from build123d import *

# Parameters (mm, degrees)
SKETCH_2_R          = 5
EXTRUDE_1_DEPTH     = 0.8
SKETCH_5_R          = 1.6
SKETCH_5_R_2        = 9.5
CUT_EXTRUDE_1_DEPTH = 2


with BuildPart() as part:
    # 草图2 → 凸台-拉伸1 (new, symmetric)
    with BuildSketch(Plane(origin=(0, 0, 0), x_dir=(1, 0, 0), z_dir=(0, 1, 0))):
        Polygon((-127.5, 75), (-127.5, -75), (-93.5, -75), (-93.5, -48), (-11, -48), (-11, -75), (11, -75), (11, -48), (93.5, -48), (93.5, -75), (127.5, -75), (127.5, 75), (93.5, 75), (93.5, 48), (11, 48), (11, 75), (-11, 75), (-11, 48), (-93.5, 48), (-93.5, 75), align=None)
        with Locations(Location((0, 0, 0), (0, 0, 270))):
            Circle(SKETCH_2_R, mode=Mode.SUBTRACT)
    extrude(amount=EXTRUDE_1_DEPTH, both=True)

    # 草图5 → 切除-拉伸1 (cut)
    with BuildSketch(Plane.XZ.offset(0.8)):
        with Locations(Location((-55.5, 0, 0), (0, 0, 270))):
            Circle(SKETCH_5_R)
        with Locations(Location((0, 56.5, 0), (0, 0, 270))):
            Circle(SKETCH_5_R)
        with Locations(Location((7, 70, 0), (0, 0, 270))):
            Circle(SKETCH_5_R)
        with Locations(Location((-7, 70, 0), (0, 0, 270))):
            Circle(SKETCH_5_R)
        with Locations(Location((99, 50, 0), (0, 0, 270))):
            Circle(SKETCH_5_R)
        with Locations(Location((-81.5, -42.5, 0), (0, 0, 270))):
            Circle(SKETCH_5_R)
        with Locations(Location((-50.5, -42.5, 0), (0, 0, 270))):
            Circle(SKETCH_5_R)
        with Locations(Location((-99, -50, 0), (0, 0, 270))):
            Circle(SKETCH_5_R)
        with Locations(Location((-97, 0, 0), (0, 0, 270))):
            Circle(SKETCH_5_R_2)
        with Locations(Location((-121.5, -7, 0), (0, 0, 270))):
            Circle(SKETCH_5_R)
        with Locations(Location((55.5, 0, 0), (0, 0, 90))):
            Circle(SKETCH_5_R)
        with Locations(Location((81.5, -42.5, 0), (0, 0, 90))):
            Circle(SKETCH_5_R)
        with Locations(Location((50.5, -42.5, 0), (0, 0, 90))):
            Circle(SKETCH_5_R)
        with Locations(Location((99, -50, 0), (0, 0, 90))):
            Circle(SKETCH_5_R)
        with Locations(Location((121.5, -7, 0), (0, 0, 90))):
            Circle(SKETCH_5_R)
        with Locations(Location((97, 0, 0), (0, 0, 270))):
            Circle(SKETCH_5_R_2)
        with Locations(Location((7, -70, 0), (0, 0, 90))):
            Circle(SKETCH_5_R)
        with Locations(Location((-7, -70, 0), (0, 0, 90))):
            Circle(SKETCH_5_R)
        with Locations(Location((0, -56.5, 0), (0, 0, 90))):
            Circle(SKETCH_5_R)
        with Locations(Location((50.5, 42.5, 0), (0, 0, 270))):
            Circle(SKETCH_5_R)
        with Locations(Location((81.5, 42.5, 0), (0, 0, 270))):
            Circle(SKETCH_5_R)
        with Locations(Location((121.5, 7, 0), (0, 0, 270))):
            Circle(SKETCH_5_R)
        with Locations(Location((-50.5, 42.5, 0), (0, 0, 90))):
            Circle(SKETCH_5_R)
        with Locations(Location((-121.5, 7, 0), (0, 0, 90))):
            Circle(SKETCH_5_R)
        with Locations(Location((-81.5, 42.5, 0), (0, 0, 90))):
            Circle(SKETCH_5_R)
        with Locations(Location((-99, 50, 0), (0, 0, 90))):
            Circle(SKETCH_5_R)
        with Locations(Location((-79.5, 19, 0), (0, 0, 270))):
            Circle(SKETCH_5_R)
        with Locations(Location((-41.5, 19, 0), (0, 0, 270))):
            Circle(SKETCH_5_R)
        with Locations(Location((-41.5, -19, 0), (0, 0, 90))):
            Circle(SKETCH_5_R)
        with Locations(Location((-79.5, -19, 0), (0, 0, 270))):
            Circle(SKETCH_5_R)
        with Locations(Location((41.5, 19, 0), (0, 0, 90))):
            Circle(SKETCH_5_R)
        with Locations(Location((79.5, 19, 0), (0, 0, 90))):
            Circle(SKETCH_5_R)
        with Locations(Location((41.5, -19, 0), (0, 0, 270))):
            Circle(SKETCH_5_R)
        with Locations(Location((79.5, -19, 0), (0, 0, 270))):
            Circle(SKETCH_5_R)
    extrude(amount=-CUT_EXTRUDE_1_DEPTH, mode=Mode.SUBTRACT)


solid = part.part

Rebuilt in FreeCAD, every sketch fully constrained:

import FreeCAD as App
import Part
import Sketcher
Q = App.Units.Quantity


def add_polygon(sketch, points):
    """Adds a closed chain of lines whose ends are joined by coincident constraints."""
    first, n = sketch.GeometryCount, len(points)
    for a, b in zip(points, points[1:] + points[:1]):
        sketch.addGeometry(Part.LineSegment(App.Vector(*a, 0), App.Vector(*b, 0)), False)
    for i in range(n):
        sketch.addConstraint(Sketcher.Constraint("Coincident", first + i, 2, first + (i + 1) % n, 1))

doc = App.newDocument("Part")
body = doc.addObject("PartDesign::Body", "Body")

# Sketch on XZ plane
sketch1 = body.newObject("Sketcher::SketchObject", "Sketch")
sketch1.AttachmentSupport = (doc.getObject("XZ_Plane"), [""])
sketch1.MapMode = "FlatFace"
add_polygon(sketch1, [(-128, -75), (-128, 75), (-94, 75), (-94, 48), (-11, 48), (-11, 75), (11, 75), (11, 48), (94, 48), (94, 75), (128, 75), (128, -75), (94, -75), (94, -48), (11, -48), (11, -75), (-11, -75), (-11, -48), (-94, -48), (-94, -75)])  # lines 0-19
sketch1.addGeometry(Part.Circle(App.Vector(0, 0, 0), App.Vector(0, 0, 1), 5), False)  # 20
sketch1.addConstraint(Sketcher.Constraint("Vertical", 0))
sketch1.addConstraint(Sketcher.Constraint("Horizontal", 1))
sketch1.addConstraint(Sketcher.Constraint("Vertical", 2))
sketch1.addConstraint(Sketcher.Constraint("Horizontal", 3))
sketch1.addConstraint(Sketcher.Constraint("Vertical", 4))
sketch1.addConstraint(Sketcher.Constraint("Horizontal", 5))
sketch1.addConstraint(Sketcher.Constraint("Vertical", 6))
sketch1.addConstraint(Sketcher.Constraint("Horizontal", 7))
sketch1.addConstraint(Sketcher.Constraint("Vertical", 8))
sketch1.addConstraint(Sketcher.Constraint("Horizontal", 9))
sketch1.addConstraint(Sketcher.Constraint("Vertical", 10))
sketch1.addConstraint(Sketcher.Constraint("Horizontal", 11))
sketch1.addConstraint(Sketcher.Constraint("Vertical", 12))
sketch1.addConstraint(Sketcher.Constraint("Horizontal", 13))
sketch1.addConstraint(Sketcher.Constraint("Vertical", 14))
sketch1.addConstraint(Sketcher.Constraint("Horizontal", 15))
sketch1.addConstraint(Sketcher.Constraint("Vertical", 16))
sketch1.addConstraint(Sketcher.Constraint("Horizontal", 17))
sketch1.addConstraint(Sketcher.Constraint("Vertical", 18))
sketch1.addConstraint(Sketcher.Constraint("Horizontal", 19))
sketch1.addConstraint(Sketcher.Constraint("Coincident", 20, 3, -1, 1))
sketch1.addConstraint(Sketcher.Constraint("Symmetric", 0, 2, 10, 2, -1, 1))
sketch1.addConstraint(Sketcher.Constraint("Symmetric", 2, 2, 12, 2, -1, 1))
sketch1.addConstraint(Sketcher.Constraint("Symmetric", 4, 2, 14, 2, -1, 1))
sketch1.addConstraint(Sketcher.Constraint("Symmetric", 6, 2, 16, 2, -1, 1))
sketch1.addConstraint(Sketcher.Constraint("Symmetric", 8, 2, 18, 2, -1, 1))
sketch1.addConstraint(Sketcher.Constraint("Symmetric", 3, 2, 6, 2, -2))
sketch1.addConstraint(Sketcher.Constraint("Symmetric", 1, 2, 8, 2, -2))
sketch1.addConstraint(Sketcher.Constraint("Horizontal", 1, 2, 4, 2))
sketch1.addConstraint(Sketcher.Constraint("Diameter", 20, Q("10 mm")))
sketch1.addConstraint(Sketcher.Constraint("DistanceX", 1, 1, 1, 2, Q("34 mm")))
sketch1.addConstraint(Sketcher.Constraint("DistanceX", 5, 1, 5, 2, Q("22 mm")))
sketch1.addConstraint(Sketcher.Constraint("DistanceY", 0, 1, 0, 2, Q("150 mm")))
sketch1.addConstraint(Sketcher.Constraint("DistanceY", 2, 2, 2, 1, Q("27 mm")))
sketch1.addConstraint(Sketcher.Constraint("DistanceX", 3, 1, 3, 2, Q("82.5 mm")))
pad1 = body.newObject("PartDesign::Pad", "Pad")
pad1.Profile = sketch1
pad1.Length = 1.6
pad1.Midplane = True

# Sketch on XZ plane
sketch2 = body.newObject("Sketcher::SketchObject", "Sketch001")
sketch2.AttachmentSupport = (doc.getObject("XZ_Plane"), [""])
sketch2.MapMode = "FlatFace"
sketch2.AttachmentOffset = App.Placement(App.Vector(0, 0, 0.8), App.Rotation())
sketch2.addGeometry(Part.Circle(App.Vector(-55.5, 0, 0), App.Vector(0, 0, 1), 1.6), False)
sketch2.addGeometry(Part.Circle(App.Vector(0, 56.5, 0), App.Vector(0, 0, 1), 1.6), False)
sketch2.addGeometry(Part.Circle(App.Vector(7, 70, 0), App.Vector(0, 0, 1), 1.6), False)
sketch2.addGeometry(Part.Circle(App.Vector(-7, 70, 0), App.Vector(0, 0, 1), 1.6), False)
sketch2.addGeometry(Part.Circle(App.Vector(99, 50, 0), App.Vector(0, 0, 1), 1.6), False)
sketch2.addGeometry(Part.Circle(App.Vector(-81.5, -42.5, 0), App.Vector(0, 0, 1), 1.6), False)
sketch2.addGeometry(Part.Circle(App.Vector(-50.5, -42.5, 0), App.Vector(0, 0, 1), 1.6), False)
sketch2.addGeometry(Part.Circle(App.Vector(-99, -50, 0), App.Vector(0, 0, 1), 1.6), False)
sketch2.addGeometry(Part.Circle(App.Vector(-97, 0, 0), App.Vector(0, 0, 1), 9.5), False)
sketch2.addGeometry(Part.Circle(App.Vector(-121.5, -7, 0), App.Vector(0, 0, 1), 1.6), False)
sketch2.addGeometry(Part.Circle(App.Vector(55.5, 0, 0), App.Vector(0, 0, 1), 1.6), False)
sketch2.addGeometry(Part.Circle(App.Vector(81.5, -42.5, 0), App.Vector(0, 0, 1), 1.6), False)
sketch2.addGeometry(Part.Circle(App.Vector(50.5, -42.5, 0), App.Vector(0, 0, 1), 1.6), False)
sketch2.addGeometry(Part.Circle(App.Vector(99, -50, 0), App.Vector(0, 0, 1), 1.6), False)
sketch2.addGeometry(Part.Circle(App.Vector(121.5, -7, 0), App.Vector(0, 0, 1), 1.6), False)
sketch2.addGeometry(Part.Circle(App.Vector(97, 0, 0), App.Vector(0, 0, 1), 9.5), False)
sketch2.addGeometry(Part.Circle(App.Vector(7, -70, 0), App.Vector(0, 0, 1), 1.6), False)
sketch2.addGeometry(Part.Circle(App.Vector(-7, -70, 0), App.Vector(0, 0, 1), 1.6), False)
sketch2.addGeometry(Part.Circle(App.Vector(0, -56.5, 0), App.Vector(0, 0, 1), 1.6), False)
sketch2.addGeometry(Part.Circle(App.Vector(50.5, 42.5, 0), App.Vector(0, 0, 1), 1.6), False)
sketch2.addGeometry(Part.Circle(App.Vector(81.5, 42.5, 0), App.Vector(0, 0, 1), 1.6), False)
sketch2.addGeometry(Part.Circle(App.Vector(121.5, 7, 0), App.Vector(0, 0, 1), 1.6), False)
sketch2.addGeometry(Part.Circle(App.Vector(-50.5, 42.5, 0), App.Vector(0, 0, 1), 1.6), False)
sketch2.addGeometry(Part.Circle(App.Vector(-121.5, 7, 0), App.Vector(0, 0, 1), 1.6), False)
sketch2.addGeometry(Part.Circle(App.Vector(-81.5, 42.5, 0), App.Vector(0, 0, 1), 1.6), False)
sketch2.addGeometry(Part.Circle(App.Vector(-99, 50, 0), App.Vector(0, 0, 1), 1.6), False)
sketch2.addGeometry(Part.Circle(App.Vector(-79.5, 19, 0), App.Vector(0, 0, 1), 1.6), False)
sketch2.addGeometry(Part.Circle(App.Vector(-41.5, 19, 0), App.Vector(0, 0, 1), 1.6), False)
sketch2.addGeometry(Part.Circle(App.Vector(-41.5, -19, 0), App.Vector(0, 0, 1), 1.6), False)
sketch2.addGeometry(Part.Circle(App.Vector(-79.5, -19, 0), App.Vector(0, 0, 1), 1.6), False)
sketch2.addGeometry(Part.Circle(App.Vector(41.5, 19, 0), App.Vector(0, 0, 1), 1.6), False)
sketch2.addGeometry(Part.Circle(App.Vector(79.5, 19, 0), App.Vector(0, 0, 1), 1.6), False)
sketch2.addGeometry(Part.Circle(App.Vector(41.5, -19, 0), App.Vector(0, 0, 1), 1.6), False)
sketch2.addGeometry(Part.Circle(App.Vector(79.5, -19, 0), App.Vector(0, 0, 1), 1.6), False)
sketch2.addConstraint(Sketcher.Constraint("Equal", 0, 1))
sketch2.addConstraint(Sketcher.Constraint("Equal", 1, 2))
sketch2.addConstraint(Sketcher.Constraint("Equal", 2, 3))
sketch2.addConstraint(Sketcher.Constraint("Equal", 3, 4))
sketch2.addConstraint(Sketcher.Constraint("Equal", 4, 5))
sketch2.addConstraint(Sketcher.Constraint("Equal", 5, 6))
sketch2.addConstraint(Sketcher.Constraint("Equal", 6, 7))
sketch2.addConstraint(Sketcher.Constraint("Equal", 7, 9))
sketch2.addConstraint(Sketcher.Constraint("Equal", 9, 10))
sketch2.addConstraint(Sketcher.Constraint("Equal", 10, 11))
sketch2.addConstraint(Sketcher.Constraint("Equal", 11, 12))
sketch2.addConstraint(Sketcher.Constraint("Equal", 12, 13))
sketch2.addConstraint(Sketcher.Constraint("Equal", 13, 14))
sketch2.addConstraint(Sketcher.Constraint("Equal", 8, 15))
sketch2.addConstraint(Sketcher.Constraint("Equal", 14, 16))
sketch2.addConstraint(Sketcher.Constraint("Equal", 16, 17))
sketch2.addConstraint(Sketcher.Constraint("Equal", 17, 18))
sketch2.addConstraint(Sketcher.Constraint("Equal", 18, 19))
sketch2.addConstraint(Sketcher.Constraint("Equal", 19, 20))
sketch2.addConstraint(Sketcher.Constraint("Equal", 20, 21))
sketch2.addConstraint(Sketcher.Constraint("Equal", 21, 22))
sketch2.addConstraint(Sketcher.Constraint("Equal", 22, 23))
sketch2.addConstraint(Sketcher.Constraint("Equal", 23, 24))
sketch2.addConstraint(Sketcher.Constraint("Equal", 24, 25))
sketch2.addConstraint(Sketcher.Constraint("Equal", 25, 26))
sketch2.addConstraint(Sketcher.Constraint("Equal", 26, 27))
sketch2.addConstraint(Sketcher.Constraint("Equal", 27, 28))
sketch2.addConstraint(Sketcher.Constraint("Equal", 28, 29))
sketch2.addConstraint(Sketcher.Constraint("Equal", 29, 30))
sketch2.addConstraint(Sketcher.Constraint("Equal", 30, 31))
sketch2.addConstraint(Sketcher.Constraint("Equal", 31, 32))
sketch2.addConstraint(Sketcher.Constraint("Equal", 32, 33))
sketch2.addConstraint(Sketcher.Constraint("Symmetric", 4, 3, 7, 3, -1, 1))
sketch2.addConstraint(Sketcher.Constraint("Symmetric", 0, 3, 10, 3, -1, 1))
sketch2.addConstraint(Sketcher.Constraint("Symmetric", 8, 3, 15, 3, -1, 1))
sketch2.addConstraint(Sketcher.Constraint("Symmetric", 3, 3, 16, 3, -1, 1))
sketch2.addConstraint(Sketcher.Constraint("Symmetric", 2, 3, 17, 3, -1, 1))
sketch2.addConstraint(Sketcher.Constraint("Symmetric", 1, 3, 18, 3, -1, 1))
sketch2.addConstraint(Sketcher.Constraint("Symmetric", 6, 3, 19, 3, -1, 1))
sketch2.addConstraint(Sketcher.Constraint("Symmetric", 5, 3, 20, 3, -1, 1))
sketch2.addConstraint(Sketcher.Constraint("Symmetric", 9, 3, 21, 3, -1, 1))
sketch2.addConstraint(Sketcher.Constraint("Symmetric", 12, 3, 22, 3, -1, 1))
sketch2.addConstraint(Sketcher.Constraint("Symmetric", 14, 3, 23, 3, -1, 1))
sketch2.addConstraint(Sketcher.Constraint("Symmetric", 11, 3, 24, 3, -1, 1))
sketch2.addConstraint(Sketcher.Constraint("Symmetric", 13, 3, 25, 3, -1, 1))
sketch2.addConstraint(Sketcher.Constraint("Symmetric", 28, 3, 30, 3, -1, 1))
sketch2.addConstraint(Sketcher.Constraint("Symmetric", 29, 3, 31, 3, -1, 1))
sketch2.addConstraint(Sketcher.Constraint("Symmetric", 27, 3, 32, 3, -1, 1))
sketch2.addConstraint(Sketcher.Constraint("Symmetric", 26, 3, 33, 3, -1, 1))
sketch2.addConstraint(Sketcher.Constraint("Symmetric", 2, 3, 3, 3, -2))
sketch2.addConstraint(Sketcher.Constraint("Symmetric", 5, 3, 11, 3, -2))
sketch2.addConstraint(Sketcher.Constraint("Symmetric", 6, 3, 12, 3, -2))
sketch2.addConstraint(Sketcher.Constraint("Symmetric", 7, 3, 13, 3, -2))
sketch2.addConstraint(Sketcher.Constraint("Symmetric", 9, 3, 14, 3, -2))
sketch2.addConstraint(Sketcher.Constraint("Symmetric", 27, 3, 30, 3, -2))
sketch2.addConstraint(Sketcher.Constraint("Symmetric", 26, 3, 31, 3, -2))
sketch2.addConstraint(Sketcher.Constraint("PointOnObject", 0, 3, -1))
sketch2.addConstraint(Sketcher.Constraint("PointOnObject", 1, 3, -2))
sketch2.addConstraint(Sketcher.Constraint("PointOnObject", 8, 3, -1))
sketch2.addConstraint(Sketcher.Constraint("Horizontal", 5, 3, 6, 3))
sketch2.addConstraint(Sketcher.Constraint("Horizontal", 26, 3, 27, 3))
sketch2.addConstraint(Sketcher.Constraint("Diameter", 8, Q("19 mm")))
sketch2.addConstraint(Sketcher.Constraint("Diameter", 0, Q("3.2 mm")))
sketch2.addConstraint(Sketcher.Constraint("DistanceX", -1, 1, 2, 3, Q("7 mm")))
sketch2.addConstraint(Sketcher.Constraint("DistanceY", -1, 1, 2, 3, Q("70 mm")))
sketch2.addConstraint(Sketcher.Constraint("DistanceX", -1, 1, 4, 3, Q("99 mm")))
sketch2.addConstraint(Sketcher.Constraint("DistanceY", -1, 1, 4, 3, Q("50 mm")))
sketch2.addConstraint(Sketcher.Constraint("DistanceX", 8, 3, -1, 1, Q("97 mm")))
sketch2.addConstraint(Sketcher.Constraint("DistanceY", 9, 3, -1, 1, Q("7 mm")))
sketch2.addConstraint(Sketcher.Constraint("DistanceY", -1, 1, 26, 3, Q("19 mm")))
sketch2.addConstraint(Sketcher.Constraint("DistanceX", 5, 3, 0, 3, Q("26 mm")))
sketch2.addConstraint(Sketcher.Constraint("DistanceY", 5, 3, 1, 3, Q("99 mm")))
sketch2.addConstraint(Sketcher.Constraint("DistanceX", 5, 3, 6, 3, Q("31 mm")))
sketch2.addConstraint(Sketcher.Constraint("DistanceX", 9, 3, 5, 3, Q("40 mm")))
sketch2.addConstraint(Sketcher.Constraint("DistanceX", 0, 3, 10, 3, Q("111 mm")))
sketch2.addConstraint(Sketcher.Constraint("DistanceY", 18, 3, 6, 3, Q("14 mm")))
sketch2.addConstraint(Sketcher.Constraint("DistanceX", 24, 3, 26, 3, Q("2 mm")))
sketch2.addConstraint(Sketcher.Constraint("DistanceX", 0, 3, 27, 3, Q("14 mm")))
pocket1 = body.newObject("PartDesign::Pocket", "Pocket")
pocket1.Profile = sketch2
pocket1.Length = 2

doc.recompute()
